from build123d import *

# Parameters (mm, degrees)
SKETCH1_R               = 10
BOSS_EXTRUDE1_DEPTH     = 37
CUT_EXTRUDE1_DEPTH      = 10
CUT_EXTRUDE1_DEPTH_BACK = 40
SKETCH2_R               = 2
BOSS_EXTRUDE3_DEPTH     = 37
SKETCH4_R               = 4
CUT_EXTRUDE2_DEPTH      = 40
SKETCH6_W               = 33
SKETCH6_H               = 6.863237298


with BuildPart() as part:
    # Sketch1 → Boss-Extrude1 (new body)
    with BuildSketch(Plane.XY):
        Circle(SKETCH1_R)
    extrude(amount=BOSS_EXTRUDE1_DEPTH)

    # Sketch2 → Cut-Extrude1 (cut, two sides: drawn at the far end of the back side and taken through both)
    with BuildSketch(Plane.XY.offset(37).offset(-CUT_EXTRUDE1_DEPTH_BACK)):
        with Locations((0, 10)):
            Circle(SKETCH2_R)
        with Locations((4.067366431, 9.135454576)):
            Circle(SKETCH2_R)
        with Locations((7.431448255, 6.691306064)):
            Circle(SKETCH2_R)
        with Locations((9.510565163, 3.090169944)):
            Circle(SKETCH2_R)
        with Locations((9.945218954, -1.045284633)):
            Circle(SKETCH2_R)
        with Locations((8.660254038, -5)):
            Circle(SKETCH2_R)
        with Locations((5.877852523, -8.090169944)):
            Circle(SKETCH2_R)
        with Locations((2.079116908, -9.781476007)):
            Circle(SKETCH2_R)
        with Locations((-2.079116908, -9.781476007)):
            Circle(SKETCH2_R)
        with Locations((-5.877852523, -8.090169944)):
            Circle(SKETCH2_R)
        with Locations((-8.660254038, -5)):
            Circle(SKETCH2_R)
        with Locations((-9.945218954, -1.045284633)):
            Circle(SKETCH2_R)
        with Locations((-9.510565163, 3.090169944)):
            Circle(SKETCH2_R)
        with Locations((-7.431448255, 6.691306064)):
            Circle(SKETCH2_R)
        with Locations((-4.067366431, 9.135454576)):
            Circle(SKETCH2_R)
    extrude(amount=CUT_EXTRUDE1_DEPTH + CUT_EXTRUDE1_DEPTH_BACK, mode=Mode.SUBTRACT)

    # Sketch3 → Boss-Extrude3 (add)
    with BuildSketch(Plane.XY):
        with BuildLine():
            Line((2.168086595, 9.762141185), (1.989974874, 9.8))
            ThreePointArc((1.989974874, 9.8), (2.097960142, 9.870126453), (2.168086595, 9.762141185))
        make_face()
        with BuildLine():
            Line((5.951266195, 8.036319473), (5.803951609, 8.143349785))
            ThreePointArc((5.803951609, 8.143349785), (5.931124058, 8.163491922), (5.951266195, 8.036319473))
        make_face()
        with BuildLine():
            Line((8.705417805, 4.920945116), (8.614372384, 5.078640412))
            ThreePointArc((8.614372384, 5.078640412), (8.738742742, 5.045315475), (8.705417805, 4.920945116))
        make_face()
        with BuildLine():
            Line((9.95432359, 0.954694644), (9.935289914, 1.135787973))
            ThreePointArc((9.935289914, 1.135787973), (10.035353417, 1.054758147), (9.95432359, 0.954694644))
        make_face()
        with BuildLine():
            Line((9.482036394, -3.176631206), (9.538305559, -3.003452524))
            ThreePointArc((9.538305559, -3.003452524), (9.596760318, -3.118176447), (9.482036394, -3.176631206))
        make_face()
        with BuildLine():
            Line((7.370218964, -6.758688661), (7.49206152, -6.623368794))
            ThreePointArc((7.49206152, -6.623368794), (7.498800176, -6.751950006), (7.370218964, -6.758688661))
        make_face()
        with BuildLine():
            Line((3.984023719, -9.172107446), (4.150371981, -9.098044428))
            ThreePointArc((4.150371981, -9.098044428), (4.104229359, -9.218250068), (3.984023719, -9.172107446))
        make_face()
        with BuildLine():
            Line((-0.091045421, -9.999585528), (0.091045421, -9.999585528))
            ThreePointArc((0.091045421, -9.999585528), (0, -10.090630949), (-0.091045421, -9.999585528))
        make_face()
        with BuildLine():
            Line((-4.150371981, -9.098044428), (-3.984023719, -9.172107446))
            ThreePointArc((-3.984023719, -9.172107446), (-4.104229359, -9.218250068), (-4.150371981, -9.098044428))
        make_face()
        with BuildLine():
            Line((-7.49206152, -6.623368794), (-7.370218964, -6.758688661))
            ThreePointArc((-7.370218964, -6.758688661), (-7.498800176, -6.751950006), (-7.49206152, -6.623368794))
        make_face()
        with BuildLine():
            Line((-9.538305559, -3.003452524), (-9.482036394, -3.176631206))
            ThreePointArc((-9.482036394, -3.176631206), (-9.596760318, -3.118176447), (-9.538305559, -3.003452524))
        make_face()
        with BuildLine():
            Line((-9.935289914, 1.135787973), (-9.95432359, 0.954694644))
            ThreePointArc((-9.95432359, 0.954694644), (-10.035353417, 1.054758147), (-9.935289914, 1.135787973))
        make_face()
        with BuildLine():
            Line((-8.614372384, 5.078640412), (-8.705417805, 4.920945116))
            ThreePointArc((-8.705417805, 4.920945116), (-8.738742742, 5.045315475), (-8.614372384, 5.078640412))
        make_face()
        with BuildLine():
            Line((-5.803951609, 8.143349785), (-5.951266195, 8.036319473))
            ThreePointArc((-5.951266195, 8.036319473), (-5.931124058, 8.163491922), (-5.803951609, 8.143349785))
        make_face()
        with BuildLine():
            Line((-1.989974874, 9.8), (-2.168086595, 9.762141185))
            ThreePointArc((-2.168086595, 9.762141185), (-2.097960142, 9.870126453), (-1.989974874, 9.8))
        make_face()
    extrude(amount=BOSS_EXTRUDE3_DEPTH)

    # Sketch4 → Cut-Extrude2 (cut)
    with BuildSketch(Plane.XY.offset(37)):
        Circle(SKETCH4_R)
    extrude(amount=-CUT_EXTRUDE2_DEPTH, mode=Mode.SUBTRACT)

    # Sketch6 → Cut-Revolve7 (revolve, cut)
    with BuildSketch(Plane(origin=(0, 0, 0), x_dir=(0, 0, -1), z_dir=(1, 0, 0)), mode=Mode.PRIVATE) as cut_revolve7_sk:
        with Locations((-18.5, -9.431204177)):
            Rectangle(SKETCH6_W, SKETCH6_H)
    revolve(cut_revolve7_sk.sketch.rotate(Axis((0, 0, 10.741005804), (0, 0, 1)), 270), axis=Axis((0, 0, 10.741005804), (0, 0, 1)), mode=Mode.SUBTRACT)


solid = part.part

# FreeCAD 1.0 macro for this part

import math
import FreeCAD as App
import Part
import Sketcher

V = App.Vector
Q = App.Units.Quantity

doc = App.newDocument("Part")
body = doc.addObject("PartDesign::Body", "Body")

sketch1 = body.newObject("Sketcher::SketchObject", "Sketch")
sketch1.AttachmentSupport = (doc.getObject("XY_Plane"), [""])
sketch1.MapMode = "FlatFace"
sketch1.addGeometry(Part.Circle(V(0, 0, 0), V(0, 0, 1), 10), False)
sketch1.addConstraint(Sketcher.Constraint("Coincident", 0, 3, -1, 1))
sketch1.addConstraint(Sketcher.Constraint("Diameter", 0, 20.0))
pad1 = body.newObject("PartDesign::Pad", "Pad")
pad1.Profile = sketch1
pad1.Length = 37

sketch2 = body.newObject("Sketcher::SketchObject", "Sketch001")
sketch2.AttachmentSupport = (doc.getObject("XY_Plane"), [""])
sketch2.MapMode = "FlatFace"
sketch2.AttachmentOffset = App.Placement(V(0, 0, 37), App.Rotation())
sketch2.addGeometry(Part.Circle(V(0, 10, 0), V(0, 0, 1), 2), False)
sketch2.addGeometry(Part.Circle(V(4.067366, 9.135455, 0), V(0, 0, 1), 2), False)
sketch2.addGeometry(Part.Circle(V(7.431448, 6.691306, 0), V(0, 0, 1), 2), False)
sketch2.addGeometry(Part.Circle(V(9.510565, 3.09017, 0), V(0, 0, 1), 2), False)
sketch2.addGeometry(Part.Circle(V(9.945219, -1.045285, 0), V(0, 0, 1), 2), False)
sketch2.addGeometry(Part.Circle(V(8.660254, -5, 0), V(0, 0, 1), 2), False)
sketch2.addGeometry(Part.Circle(V(5.877853, -8.09017, 0), V(0, 0, 1), 2), False)
sketch2.addGeometry(Part.Circle(V(2.079117, -9.781476, 0), V(0, 0, 1), 2), False)
sketch2.addGeometry(Part.Circle(V(-2.079117, -9.781476, 0), V(0, 0, 1), 2), False)
sketch2.addGeometry(Part.Circle(V(-5.877853, -8.09017, 0), V(0, 0, 1), 2), False)
sketch2.addGeometry(Part.Circle(V(-8.660254, -5, 0), V(0, 0, 1), 2), False)
sketch2.addGeometry(Part.Circle(V(-9.945219, -1.045285, 0), V(0, 0, 1), 2), False)
sketch2.addGeometry(Part.Circle(V(-9.510565, 3.09017, 0), V(0, 0, 1), 2), False)
sketch2.addGeometry(Part.Circle(V(-7.431448, 6.691306, 0), V(0, 0, 1), 2), False)
sketch2.addGeometry(Part.Circle(V(-4.067366, 9.135455, 0), V(0, 0, 1), 2), False)
sketch2.addConstraint(Sketcher.Constraint("Equal", 0, 1))
sketch2.addConstraint(Sketcher.Constraint("Equal", 1, 2))
sketch2.addConstraint(Sketcher.Constraint("Equal", 2, 3))
sketch2.addConstraint(Sketcher.Constraint("Equal", 3, 4))
sketch2.addConstraint(Sketcher.Constraint("Equal", 4, 5))
sketch2.addConstraint(Sketcher.Constraint("Equal", 5, 6))
sketch2.addConstraint(Sketcher.Constraint("Equal", 6, 7))
sketch2.addConstraint(Sketcher.Constraint("Equal", 7, 8))
sketch2.addConstraint(Sketcher.Constraint("Equal", 8, 9))
sketch2.addConstraint(Sketcher.Constraint("Equal", 9, 10))
sketch2.addConstraint(Sketcher.Constraint("Equal", 10, 11))
sketch2.addConstraint(Sketcher.Constraint("Equal", 11, 12))
sketch2.addConstraint(Sketcher.Constraint("Equal", 12, 13))
sketch2.addConstraint(Sketcher.Constraint("Equal", 13, 14))
sketch2.addConstraint(Sketcher.Constraint("Symmetric", 7, 3, 8, 3, -2))
sketch2.addConstraint(Sketcher.Constraint("Symmetric", 6, 3, 9, 3, -2))
sketch2.addConstraint(Sketcher.Constraint("Symmetric", 5, 3, 10, 3, -2))
sketch2.addConstraint(Sketcher.Constraint("Symmetric", 4, 3, 11, 3, -2))
sketch2.addConstraint(Sketcher.Constraint("Symmetric", 3, 3, 12, 3, -2))
sketch2.addConstraint(Sketcher.Constraint("Symmetric", 2, 3, 13, 3, -2))
sketch2.addConstraint(Sketcher.Constraint("Symmetric", 1, 3, 14, 3, -2))
sketch2.addConstraint(Sketcher.Constraint("PointOnObject", 0, 3, -2))
sketch2.addConstraint(Sketcher.Constraint("Diameter", 0, 4.0))
sketch2.addConstraint(Sketcher.Constraint("DistanceY", -1, 1, 0, 3, 10.0))
sketch2.addConstraint(Sketcher.Constraint("DistanceY", 5, 3, -1, 1, 5.0))
sketch2.addConstraint(Sketcher.Constraint("DistanceX", 1, 3, 3, 3, 5.443199))
sketch2.addConstraint(Sketcher.Constraint("DistanceX", 6, 3, 5, 3, 2.782402))
sketch2.addConstraint(Sketcher.Constraint("DistanceX", -1, 1, 2, 3, 7.431448))
sketch2.addConstraint(Sketcher.Constraint("DistanceY", -1, 1, 3, 3, 3.09017))
sketch2.addConstraint(Sketcher.Constraint("DistanceX", -1, 1, 4, 3, 9.945219))
sketch2.addConstraint(Sketcher.Constraint("DistanceY", 6, 3, -1, 1, 8.09017))
sketch2.addConstraint(Sketcher.Constraint("DistanceX", 1, 3, 2, 3, 3.364082))
sketch2.addConstraint(Sketcher.Constraint("DistanceY", 2, 3, 1, 3, 2.444149))
sketch2.addConstraint(Sketcher.Constraint("DistanceY", 4, 3, 2, 3, 7.736591))
sketch2.addConstraint(Sketcher.Constraint("DistanceX", 5, 3, 3, 3, 0.850311))
sketch2.addConstraint(Sketcher.Constraint("DistanceY", 7, 3, 4, 3, 8.736191))
sketch2.addConstraint(Sketcher.Constraint("DistanceX", 7, 3, 3, 3, 7.431448))
sketch2.addConstraint(Sketcher.Constraint("DistanceY", -1, 1, 1, 3, 9.135455))
pocket1 = body.newObject("PartDesign::Pocket", "Pocket")
pocket1.Profile = sketch2
pocket1.Type = "ThroughAll"
pocket1.Midplane = True

sketch3 = body.newObject("Sketcher::SketchObject", "Sketch002")
sketch3.AttachmentSupport = (doc.getObject("XY_Plane"), [""])
sketch3.MapMode = "FlatFace"
sketch3.addGeometry(Part.LineSegment(V(1.989975, 9.8, 0), V(2.168087, 9.762141, 0)), False)
sketch3.addGeometry(Part.ArcOfCircle(Part.Circle(V(2.079031, 9.781071, 0), V(0, 0, 1), 0.091045), math.radians(-12), math.radians(168)), False)
sketch3.addGeometry(Part.LineSegment(V(5.803952, 8.14335, 0), V(5.951266, 8.036319, 0)), False)
sketch3.addGeometry(Part.ArcOfCircle(Part.Circle(V(5.877609, 8.089835, 0), V(0, 0, 1), 0.091045), math.radians(-36), math.radians(144)), False)
sketch3.addGeometry(Part.LineSegment(V(8.614372, 5.07864, 0), V(8.705418, 4.920945, 0)), False)
sketch3.addGeometry(Part.ArcOfCircle(Part.Circle(V(8.659895, 4.999793, 0), V(0, 0, 1), 0.091045), math.radians(-60), math.radians(120)), False)
sketch3.addGeometry(Part.LineSegment(V(9.93529, 1.135788, 0), V(9.954324, 0.954695, 0)), False)
sketch3.addGeometry(Part.ArcOfCircle(Part.Circle(V(9.944807, 1.045241, 0), V(0, 0, 1), 0.091045), math.radians(-84.000001), math.radians(96.000001)), False)
sketch3.addGeometry(Part.LineSegment(V(9.538306, -3.003453, 0), V(9.482036, -3.176631, 0)), False)
sketch3.addGeometry(Part.ArcOfCircle(Part.Circle(V(9.510171, -3.090042, 0), V(0, 0, 1), 0.091045), math.radians(-108), math.radians(72)), False)
sketch3.addGeometry(Part.LineSegment(V(7.492062, -6.623369, 0), V(7.370219, -6.758689, 0)), False)
sketch3.addGeometry(Part.ArcOfCircle(Part.Circle(V(7.43114, -6.691029, 0), V(0, 0, 1), 0.091045), math.radians(-132.000001), math.radians(48.000001)), False)
sketch3.addGeometry(Part.LineSegment(V(4.150372, -9.098044, 0), V(3.984024, -9.172107, 0)), False)
sketch3.addGeometry(Part.ArcOfCircle(Part.Circle(V(4.067198, -9.135076, 0), V(0, 0, 1), 0.091045), math.radians(-156), math.radians(24)), False)
sketch3.addGeometry(Part.LineSegment(V(0.091045, -9.999586, 0), V(-0.091045, -9.999586, 0)), False)
sketch3.addGeometry(Part.ArcOfCircle(Part.Circle(V(0, -9.999586, 0), V(0, 0, 1), 0.091045), math.radians(180), math.radians(360)), False)
sketch3.addGeometry(Part.LineSegment(V(-3.984024, -9.172107, 0), V(-4.150372, -9.098044, 0)), False)
sketch3.addGeometry(Part.ArcOfCircle(Part.Circle(V(-4.067198, -9.135076, 0), V(0, 0, 1), 0.091045), math.radians(156), math.radians(336)), False)
sketch3.addGeometry(Part.LineSegment(V(-7.370219, -6.758689, 0), V(-7.492062, -6.623369, 0)), False)
sketch3.addGeometry(Part.ArcOfCircle(Part.Circle(V(-7.43114, -6.691029, 0), V(0, 0, 1), 0.091045), math.radians(131.999999), math.radians(312.000001)), False)
sketch3.addGeometry(Part.LineSegment(V(-9.482036, -3.176631, 0), V(-9.538306, -3.003453, 0)), False)
sketch3.addGeometry(Part.ArcOfCircle(Part.Circle(V(-9.510171, -3.090042, 0), V(0, 0, 1), 0.091045), math.radians(108), math.radians(288)), False)
sketch3.addGeometry(Part.LineSegment(V(-9.954324, 0.954695, 0), V(-9.93529, 1.135788, 0)), False)
sketch3.addGeometry(Part.ArcOfCircle(Part.Circle(V(-9.944807, 1.045241, 0), V(0, 0, 1), 0.091045), math.radians(83.999999), math.radians(264.000001)), False)
sketch3.addGeometry(Part.LineSegment(V(-8.705418, 4.920945, 0), V(-8.614372, 5.07864, 0)), False)
sketch3.addGeometry(Part.ArcOfCircle(Part.Circle(V(-8.659895, 4.999793, 0), V(0, 0, 1), 0.091045), math.radians(60), math.radians(240)), False)
sketch3.addGeometry(Part.LineSegment(V(-5.951266, 8.036319, 0), V(-5.803952, 8.14335, 0)), False)
sketch3.addGeometry(Part.ArcOfCircle(Part.Circle(V(-5.877609, 8.089835, 0), V(0, 0, 1), 0.091045), math.radians(36), math.radians(216)), False)
sketch3.addGeometry(Part.LineSegment(V(-2.168087, 9.762141, 0), V(-1.989975, 9.8, 0)), False)
sketch3.addGeometry(Part.ArcOfCircle(Part.Circle(V(-2.079031, 9.781071, 0), V(0, 0, 1), 0.091045), math.radians(12), math.radians(192)), False)
sketch3.addConstraint(Sketcher.Constraint("Coincident", 0, 1, 1, 2))
sketch3.addConstraint(Sketcher.Constraint("Coincident", 1, 1, 0, 2))
sketch3.addConstraint(Sketcher.Constraint("Coincident", 2, 1, 3, 2))
sketch3.addConstraint(Sketcher.Constraint("Coincident", 3, 1, 2, 2))
sketch3.addConstraint(Sketcher.Constraint("Coincident", 4, 1, 5, 2))
sketch3.addConstraint(Sketcher.Constraint("Coincident", 5, 1, 4, 2))
sketch3.addConstraint(Sketcher.Constraint("Coincident", 6, 1, 7, 2))
sketch3.addConstraint(Sketcher.Constraint("Coincident", 7, 1, 6, 2))
sketch3.addConstraint(Sketcher.Constraint("Coincident", 8, 1, 9, 2))
sketch3.addConstraint(Sketcher.Constraint("Coincident", 9, 1, 8, 2))
sketch3.addConstraint(Sketcher.Constraint("Coincident", 10, 1, 11, 2))
sketch3.addConstraint(Sketcher.Constraint("Coincident", 11, 1, 10, 2))
sketch3.addConstraint(Sketcher.Constraint("Coincident", 12, 1, 13, 2))
sketch3.addConstraint(Sketcher.Constraint("Coincident", 13, 1, 12, 2))
sketch3.addConstraint(Sketcher.Constraint("Coincident", 14, 1, 15, 2))
sketch3.addConstraint(Sketcher.Constraint("Coincident", 15, 1, 14, 2))
sketch3.addConstraint(Sketcher.Constraint("Coincident", 16, 1, 17, 2))
sketch3.addConstraint(Sketcher.Constraint("Coincident", 17, 1, 16, 2))
sketch3.addConstraint(Sketcher.Constraint("Coincident", 18, 1, 19, 2))
sketch3.addConstraint(Sketcher.Constraint("Coincident", 19, 1, 18, 2))
sketch3.addConstraint(Sketcher.Constraint("Coincident", 20, 1, 21, 2))
sketch3.addConstraint(Sketcher.Constraint("Coincident", 21, 1, 20, 2))
sketch3.addConstraint(Sketcher.Constraint("Coincident", 22, 1, 23, 2))
sketch3.addConstraint(Sketcher.Constraint("Coincident", 23, 1, 22, 2))
sketch3.addConstraint(Sketcher.Constraint("Coincident", 24, 1, 25, 2))
sketch3.addConstraint(Sketcher.Constraint("Coincident", 25, 1, 24, 2))
sketch3.addConstraint(Sketcher.Constraint("Coincident", 26, 1, 27, 2))
sketch3.addConstraint(Sketcher.Constraint("Coincident", 27, 1, 26, 2))
sketch3.addConstraint(Sketcher.Constraint("Coincident", 28, 1, 29, 2))
sketch3.addConstraint(Sketcher.Constraint("Coincident", 29, 1, 28, 2))
sketch3.addConstraint(Sketcher.Constraint("Horizontal", 14))
sketch3.addConstraint(Sketcher.Constraint("Equal", 1, 3))
sketch3.addConstraint(Sketcher.Constraint("Equal", 3, 5))
sketch3.addConstraint(Sketcher.Constraint("Equal", 5, 7))
sketch3.addConstraint(Sketcher.Constraint("Equal", 7, 9))
sketch3.addConstraint(Sketcher.Constraint("Equal", 9, 11))
sketch3.addConstraint(Sketcher.Constraint("Equal", 11, 13))
sketch3.addConstraint(Sketcher.Constraint("Equal", 13, 15))
sketch3.addConstraint(Sketcher.Constraint("Equal", 15, 17))
sketch3.addConstraint(Sketcher.Constraint("Equal", 17, 19))
sketch3.addConstraint(Sketcher.Constraint("Equal", 19, 21))
sketch3.addConstraint(Sketcher.Constraint("Equal", 21, 23))
sketch3.addConstraint(Sketcher.Constraint("Equal", 23, 25))
sketch3.addConstraint(Sketcher.Constraint("Equal", 25, 27))
sketch3.addConstraint(Sketcher.Constraint("Equal", 27, 29))
sketch3.addConstraint(Sketcher.Constraint("Symmetric", 13, 3, 17, 3, -2))
sketch3.addConstraint(Sketcher.Constraint("Symmetric", 11, 3, 19, 3, -2))
sketch3.addConstraint(Sketcher.Constraint("Symmetric", 9, 3, 21, 3, -2))
sketch3.addConstraint(Sketcher.Constraint("Symmetric", 7, 3, 23, 3, -2))
sketch3.addConstraint(Sketcher.Constraint("Symmetric", 5, 3, 25, 3, -2))
sketch3.addConstraint(Sketcher.Constraint("Symmetric", 3, 3, 27, 3, -2))
sketch3.addConstraint(Sketcher.Constraint("Symmetric", 1, 3, 29, 3, -2))
sketch3.addConstraint(Sketcher.Constraint("PointOnObject", 15, 3, -2))
sketch3.addConstraint(Sketcher.Constraint("Horizontal", 15, 3, 14, 1))
sketch3.addConstraint(Sketcher.Constraint("Horizontal", 13, 1, 16, 1))
sketch3.addConstraint(Sketcher.Constraint("Horizontal", 12, 1, 17, 1))
sketch3.addConstraint(Sketcher.Constraint("Horizontal", 11, 1, 18, 1))
sketch3.addConstraint(Sketcher.Constraint("Horizontal", 10, 1, 19, 1))
sketch3.addConstraint(Sketcher.Constraint("Horizontal", 9, 1, 20, 1))
sketch3.addConstraint(Sketcher.Constraint("Horizontal", 8, 1, 21, 1))
sketch3.addConstraint(Sketcher.Constraint("Horizontal", 7, 1, 22, 1))
sketch3.addConstraint(Sketcher.Constraint("Horizontal", 6, 1, 23, 1))
sketch3.addConstraint(Sketcher.Constraint("Horizontal", 5, 1, 24, 1))
sketch3.addConstraint(Sketcher.Constraint("Horizontal", 4, 1, 25, 1))
sketch3.addConstraint(Sketcher.Constraint("Horizontal", 3, 1, 26, 1))
sketch3.addConstraint(Sketcher.Constraint("Horizontal", 2, 1, 27, 1))
sketch3.addConstraint(Sketcher.Constraint("Horizontal", 1, 1, 28, 1))
sketch3.addConstraint(Sketcher.Constraint("Horizontal", 0, 1, 29, 1))
sketch3.addConstraint(Sketcher.Constraint("Angle", 0, Q("-12 deg")))
sketch3.addConstraint(Sketcher.Constraint("Angle", 2, Q("-36 deg")))
sketch3.addConstraint(Sketcher.Constraint("Angle", 4, Q("-60 deg")))
sketch3.addConstraint(Sketcher.Constraint("Angle", 6, Q("-84 deg")))
sketch3.addConstraint(Sketcher.Constraint("Angle", 8, Q("-108 deg")))
sketch3.addConstraint(Sketcher.Constraint("Angle", 10, Q("-132 deg")))
sketch3.addConstraint(Sketcher.Constraint("Angle", 12, Q("-156 deg")))
sketch3.addConstraint(Sketcher.Constraint("DistanceY", -1, 1, 0, 1, 9.8))
sketch3.addConstraint(Sketcher.Constraint("Radius", 1, 0.091045))
sketch3.addConstraint(Sketcher.Constraint("DistanceY", 11, 3, 1, 3, 16.472099))
sketch3.addConstraint(Sketcher.Constraint("DistanceX", 21, 3, 1, 3, 11.589202))
sketch3.addConstraint(Sketcher.Constraint("DistanceY", 7, 3, 4, 1, 4.033399))
sketch3.addConstraint(Sketcher.Constraint("DistanceY", 7, 1, 5, 3, 4.045098))
sketch3.addConstraint(Sketcher.Constraint("DistanceX", 8, 1, 7, 3, 0.406501))
sketch3.addConstraint(Sketcher.Constraint("DistanceX", -1, 1, 1, 3, 2.079031))
sketch3.addConstraint(Sketcher.Constraint("DistanceY", -1, 1, 1, 3, 9.781071))
sketch3.addConstraint(Sketcher.Constraint("DistanceX", -1, 1, 3, 3, 5.877609))
sketch3.addConstraint(Sketcher.Constraint("DistanceY", -1, 1, 7, 3, 1.045241))
sketch3.addConstraint(Sketcher.Constraint("DistanceY", 9, 3, -1, 1, 3.090042))
sketch3.addConstraint(Sketcher.Constraint("DistanceX", -1, 1, 11, 3, 7.43114))
sketch3.addConstraint(Sketcher.Constraint("DistanceX", -1, 1, 2, 1, 5.803952))
sketch3.addConstraint(Sketcher.Constraint("DistanceY", -1, 1, 2, 1, 8.14335))
sketch3.addConstraint(Sketcher.Constraint("DistanceX", -1, 1, 6, 1, 9.93529))
sketch3.addConstraint(Sketcher.Constraint("DistanceY", 9, 1, -1, 1, 3.176631))
sketch3.addConstraint(Sketcher.Constraint("DistanceX", -1, 1, 10, 1, 7.492062))
sketch3.addConstraint(Sketcher.Constraint("DistanceX", -1, 1, 12, 1, 4.150372))
sketch3.addConstraint(Sketcher.Constraint("DistanceX", 5, 3, 7, 3, 1.284912))
sketch3.addConstraint(Sketcher.Constraint("DistanceX", 13, 3, 7, 3, 5.877609))
sketch3.addConstraint(Sketcher.Constraint("DistanceY", 13, 3, 5, 3, 14.134869))
sketch3.addConstraint(Sketcher.Constraint("DistanceY", 15, 3, 13, 3, 0.86451))
pad2 = body.newObject("PartDesign::Pad", "Pad001")
pad2.Profile = sketch3
pad2.Length = 37

sketch4 = body.newObject("Sketcher::SketchObject", "Sketch003")
sketch4.AttachmentSupport = (doc.getObject("XY_Plane"), [""])
sketch4.MapMode = "FlatFace"
sketch4.AttachmentOffset = App.Placement(V(0, 0, 37), App.Rotation())
sketch4.addGeometry(Part.Circle(V(0, 0, 0), V(0, 0, 1), 4), False)
sketch4.addConstraint(Sketcher.Constraint("Coincident", 0, 3, -1, 1))
sketch4.addConstraint(Sketcher.Constraint("Diameter", 0, 8.0))
pocket2 = body.newObject("PartDesign::Pocket", "Pocket001")
pocket2.Profile = sketch4
pocket2.Length = 40

sketch5 = body.newObject("Sketcher::SketchObject", "Sketch004")
sketch5.AttachmentSupport = (doc.getObject("YZ_Plane"), [""])
sketch5.MapMode = "FlatFace"
sketch5.addGeometry(Part.LineSegment(V(-5.999586, 35, 0), V(-12.862823, 35, 0)), False)
sketch5.addGeometry(Part.LineSegment(V(-12.862823, 35, 0), V(-12.862823, 2, 0)), False)
sketch5.addGeometry(Part.LineSegment(V(-12.862823, 2, 0), V(-5.999586, 2, 0)), False)
sketch5.addGeometry(Part.LineSegment(V(-5.999586, 2, 0), V(-5.999586, 35, 0)), False)
sketch5.addConstraint(Sketcher.Constraint("Coincident", 0, 2, 1, 1))
sketch5.addConstraint(Sketcher.Constraint("Coincident", 1, 2, 2, 1))
sketch5.addConstraint(Sketcher.Constraint("Coincident", 2, 2, 3, 1))
sketch5.addConstraint(Sketcher.Constraint("Coincident", 3, 2, 0, 1))
sketch5.addConstraint(Sketcher.Constraint("Horizontal", 0))
sketch5.addConstraint(Sketcher.Constraint("Vertical", 1))
sketch5.addConstraint(Sketcher.Constraint("Horizontal", 2))
sketch5.addConstraint(Sketcher.Constraint("Vertical", 3))
sketch5.addConstraint(Sketcher.Constraint("DistanceY", 1, 2, 1, 1, 33.0))
sketch5.addConstraint(Sketcher.Constraint("DistanceY", -1, 1, 0, 2, 35.0))
sketch5.addConstraint(Sketcher.Constraint("DistanceX", 0, 2, 0, 1, 6.863237))
sketch5.addConstraint(Sketcher.Constraint("DistanceX", 0, 2, -1, 1, 12.862823))
groove = body.newObject("PartDesign::Groove", "Groove")
groove.Profile = sketch5
groove.ReferenceAxis = (sketch5, ["V_Axis"])
groove.Angle = 360

doc.recompute()
